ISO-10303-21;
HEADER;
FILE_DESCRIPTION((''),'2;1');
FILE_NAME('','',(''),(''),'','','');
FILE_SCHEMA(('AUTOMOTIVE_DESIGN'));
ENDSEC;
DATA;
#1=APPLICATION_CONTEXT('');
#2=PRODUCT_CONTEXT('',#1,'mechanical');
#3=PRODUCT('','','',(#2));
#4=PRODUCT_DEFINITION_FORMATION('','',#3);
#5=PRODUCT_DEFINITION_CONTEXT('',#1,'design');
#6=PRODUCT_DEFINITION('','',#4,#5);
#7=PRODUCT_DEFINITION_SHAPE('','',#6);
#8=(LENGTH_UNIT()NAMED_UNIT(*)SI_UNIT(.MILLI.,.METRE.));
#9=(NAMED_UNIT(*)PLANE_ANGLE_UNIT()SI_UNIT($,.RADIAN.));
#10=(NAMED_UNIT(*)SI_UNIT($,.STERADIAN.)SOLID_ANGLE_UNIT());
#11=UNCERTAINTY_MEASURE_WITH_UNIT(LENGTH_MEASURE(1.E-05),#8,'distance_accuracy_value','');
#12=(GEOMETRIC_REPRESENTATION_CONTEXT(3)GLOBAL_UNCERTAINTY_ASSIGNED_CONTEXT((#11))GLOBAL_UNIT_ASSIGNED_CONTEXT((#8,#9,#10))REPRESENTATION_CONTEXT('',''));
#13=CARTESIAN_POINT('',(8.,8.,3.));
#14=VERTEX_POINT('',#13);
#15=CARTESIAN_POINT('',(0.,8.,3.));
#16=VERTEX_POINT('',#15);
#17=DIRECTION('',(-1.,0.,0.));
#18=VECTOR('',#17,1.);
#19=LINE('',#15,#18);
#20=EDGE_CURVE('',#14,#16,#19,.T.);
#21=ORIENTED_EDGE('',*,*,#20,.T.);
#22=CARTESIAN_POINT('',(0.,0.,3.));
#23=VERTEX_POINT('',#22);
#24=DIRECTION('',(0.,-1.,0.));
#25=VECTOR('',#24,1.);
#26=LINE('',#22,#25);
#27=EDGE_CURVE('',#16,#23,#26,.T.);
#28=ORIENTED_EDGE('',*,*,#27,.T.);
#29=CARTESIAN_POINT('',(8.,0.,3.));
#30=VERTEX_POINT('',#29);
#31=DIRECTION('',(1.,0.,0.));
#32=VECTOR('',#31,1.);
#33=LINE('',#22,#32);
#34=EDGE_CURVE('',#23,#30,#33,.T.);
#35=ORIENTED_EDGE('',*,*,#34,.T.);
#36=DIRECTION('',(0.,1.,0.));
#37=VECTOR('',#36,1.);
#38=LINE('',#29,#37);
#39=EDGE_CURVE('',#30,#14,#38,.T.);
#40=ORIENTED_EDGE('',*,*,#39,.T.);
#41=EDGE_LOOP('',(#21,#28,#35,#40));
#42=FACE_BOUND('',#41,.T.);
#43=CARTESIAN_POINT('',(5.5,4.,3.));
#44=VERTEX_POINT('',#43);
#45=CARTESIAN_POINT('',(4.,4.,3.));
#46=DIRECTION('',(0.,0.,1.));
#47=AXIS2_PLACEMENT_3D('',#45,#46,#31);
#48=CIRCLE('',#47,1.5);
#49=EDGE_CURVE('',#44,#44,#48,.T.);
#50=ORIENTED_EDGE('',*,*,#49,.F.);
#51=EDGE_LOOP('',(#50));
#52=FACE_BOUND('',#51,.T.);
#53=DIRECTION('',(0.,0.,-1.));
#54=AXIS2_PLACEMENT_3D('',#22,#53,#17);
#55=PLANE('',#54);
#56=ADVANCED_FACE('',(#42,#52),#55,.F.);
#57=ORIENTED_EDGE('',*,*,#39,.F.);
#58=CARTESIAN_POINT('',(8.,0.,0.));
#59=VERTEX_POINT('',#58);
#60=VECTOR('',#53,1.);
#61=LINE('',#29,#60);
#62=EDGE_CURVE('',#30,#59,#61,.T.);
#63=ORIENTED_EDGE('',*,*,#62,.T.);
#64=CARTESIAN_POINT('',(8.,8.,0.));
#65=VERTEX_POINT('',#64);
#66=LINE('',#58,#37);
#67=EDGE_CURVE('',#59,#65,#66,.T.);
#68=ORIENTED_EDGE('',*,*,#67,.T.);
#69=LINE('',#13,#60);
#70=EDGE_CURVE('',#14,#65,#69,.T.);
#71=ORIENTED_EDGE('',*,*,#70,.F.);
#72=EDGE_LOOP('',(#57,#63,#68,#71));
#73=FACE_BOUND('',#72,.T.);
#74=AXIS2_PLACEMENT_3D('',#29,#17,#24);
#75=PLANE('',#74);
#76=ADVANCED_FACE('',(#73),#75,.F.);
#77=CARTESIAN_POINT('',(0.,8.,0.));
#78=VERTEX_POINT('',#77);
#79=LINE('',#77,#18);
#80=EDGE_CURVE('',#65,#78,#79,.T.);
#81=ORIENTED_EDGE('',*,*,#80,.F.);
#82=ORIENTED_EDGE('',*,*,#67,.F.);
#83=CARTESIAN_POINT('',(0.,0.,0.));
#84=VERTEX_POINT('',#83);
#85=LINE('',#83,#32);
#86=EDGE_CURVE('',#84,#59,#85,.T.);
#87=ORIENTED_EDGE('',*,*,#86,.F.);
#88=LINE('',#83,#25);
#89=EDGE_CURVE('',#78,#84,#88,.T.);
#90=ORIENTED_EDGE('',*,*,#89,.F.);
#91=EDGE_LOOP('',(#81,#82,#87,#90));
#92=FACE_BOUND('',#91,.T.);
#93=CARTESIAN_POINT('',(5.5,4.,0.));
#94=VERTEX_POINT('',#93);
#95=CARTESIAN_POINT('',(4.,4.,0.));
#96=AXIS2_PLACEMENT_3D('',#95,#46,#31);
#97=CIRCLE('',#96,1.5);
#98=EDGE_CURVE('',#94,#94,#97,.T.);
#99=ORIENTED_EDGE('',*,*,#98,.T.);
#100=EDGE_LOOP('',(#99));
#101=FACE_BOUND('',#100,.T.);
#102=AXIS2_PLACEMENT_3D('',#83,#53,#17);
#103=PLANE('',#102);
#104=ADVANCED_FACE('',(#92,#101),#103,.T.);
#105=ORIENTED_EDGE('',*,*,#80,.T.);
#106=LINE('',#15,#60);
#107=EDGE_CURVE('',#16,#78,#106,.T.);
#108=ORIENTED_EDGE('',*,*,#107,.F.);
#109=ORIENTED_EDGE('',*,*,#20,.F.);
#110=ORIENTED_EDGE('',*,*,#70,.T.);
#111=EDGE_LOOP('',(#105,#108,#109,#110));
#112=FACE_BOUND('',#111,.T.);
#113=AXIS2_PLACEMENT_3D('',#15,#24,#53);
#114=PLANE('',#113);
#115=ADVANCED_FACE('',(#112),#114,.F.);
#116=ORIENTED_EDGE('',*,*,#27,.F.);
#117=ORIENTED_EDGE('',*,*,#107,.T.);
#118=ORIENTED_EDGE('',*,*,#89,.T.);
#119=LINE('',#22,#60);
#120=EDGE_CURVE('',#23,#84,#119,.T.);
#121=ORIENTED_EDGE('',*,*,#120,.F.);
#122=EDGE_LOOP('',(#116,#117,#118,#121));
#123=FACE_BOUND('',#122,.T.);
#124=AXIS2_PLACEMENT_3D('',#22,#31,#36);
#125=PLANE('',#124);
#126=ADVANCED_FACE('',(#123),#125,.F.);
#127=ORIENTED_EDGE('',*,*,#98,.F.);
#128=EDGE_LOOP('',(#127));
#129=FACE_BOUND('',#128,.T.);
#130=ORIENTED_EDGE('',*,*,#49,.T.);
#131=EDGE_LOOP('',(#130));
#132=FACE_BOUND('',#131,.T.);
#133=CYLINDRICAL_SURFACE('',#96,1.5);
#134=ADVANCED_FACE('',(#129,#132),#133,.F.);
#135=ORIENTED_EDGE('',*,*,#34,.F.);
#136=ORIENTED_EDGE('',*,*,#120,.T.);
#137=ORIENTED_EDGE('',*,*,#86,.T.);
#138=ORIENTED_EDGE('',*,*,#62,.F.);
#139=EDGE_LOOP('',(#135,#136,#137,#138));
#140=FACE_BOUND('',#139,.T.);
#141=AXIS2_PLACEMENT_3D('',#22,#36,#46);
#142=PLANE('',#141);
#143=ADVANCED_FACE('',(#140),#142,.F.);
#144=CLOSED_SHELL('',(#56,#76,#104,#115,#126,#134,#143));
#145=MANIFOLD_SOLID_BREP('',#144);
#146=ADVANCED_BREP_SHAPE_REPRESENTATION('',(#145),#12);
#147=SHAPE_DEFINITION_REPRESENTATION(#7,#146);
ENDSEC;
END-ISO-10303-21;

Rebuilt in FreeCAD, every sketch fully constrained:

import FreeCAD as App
import Part
import Sketcher
from FreeCAD import Vector

doc = App.newDocument("Part")
params = doc.addObject("Spreadsheet::Sheet", "Params")
for row, (alias, value) in enumerate([
    ("sketch1_width", "8 mm"),
    ("pad1_length", "3 mm"),
    ("sketch2_diameter", "3 mm"),
], start=1):
    params.set(f"A{row}", alias)
    params.set(f"B{row}", "=" + value)
    params.setAlias(f"B{row}", alias)

body = doc.addObject("PartDesign::Body", "Body")

# Sketch on XY plane
sketch1 = body.newObject("Sketcher::SketchObject", "Sketch")
sketch1.AttachmentSupport = (doc.getObject("XY_Plane"), [""])
sketch1.MapMode = "FlatFace"
sketch1.addGeometry(Part.LineSegment(Vector(0, 8, 0), Vector(0, 0, 0)), False)
sketch1.addGeometry(Part.LineSegment(Vector(0, 0, 0), Vector(8, 0, 0)), False)
sketch1.addGeometry(Part.LineSegment(Vector(8, 0, 0), Vector(8, 8, 0)), False)
sketch1.addGeometry(Part.LineSegment(Vector(8, 8, 0), Vector(0, 8, 0)), False)
sketch1.addConstraint(Sketcher.Constraint("Coincident", 0, 2, 1, 1))
sketch1.addConstraint(Sketcher.Constraint("Coincident", 1, 2, 2, 1))
sketch1.addConstraint(Sketcher.Constraint("Coincident", 2, 2, 3, 1))
sketch1.addConstraint(Sketcher.Constraint("Coincident", 3, 2, 0, 1))
sketch1.addConstraint(Sketcher.Constraint("Vertical", 0))
sketch1.addConstraint(Sketcher.Constraint("Horizontal", 1))
sketch1.addConstraint(Sketcher.Constraint("Vertical", 2))
sketch1.addConstraint(Sketcher.Constraint("Horizontal", 3))
sketch1.addConstraint(Sketcher.Constraint("Coincident", 0, 2, -1, 1))
sketch1.addConstraint(Sketcher.Constraint("Equal", 3, 0))
sketch1.addConstraint(Sketcher.Constraint("DistanceX", 1, 1, 1, 2, 8.0))
sketch1.setExpression("Constraints[10]", "Params.sketch1_width")
pad1 = body.newObject("PartDesign::Pad", "Pad")
pad1.Profile = sketch1
pad1.setExpression("Length", "Params.pad1_length")

# Sketch on XY plane
sketch2 = body.newObject("Sketcher::SketchObject", "Sketch001")
sketch2.AttachmentSupport = (doc.getObject("XY_Plane"), [""])
sketch2.MapMode = "FlatFace"
sketch2.AttachmentOffset = App.Placement(Vector(0, 0, 3), App.Rotation())
sketch2.addGeometry(Part.Circle(Vector(4, 4, 0), Vector(0, 0, 1), 1.5), False)
sketch2.addConstraint(Sketcher.Constraint("Diameter", 0, 3.0))
sketch2.addConstraint(Sketcher.Constraint("DistanceX", -1, 1, 0, 3, 4.0))
sketch2.addConstraint(Sketcher.Constraint("DistanceY", -1, 1, 0, 3, 4.0))
sketch2.setExpression("Constraints[0]", "Params.sketch2_diameter")
pocket1 = body.newObject("PartDesign::Pocket", "Pocket")
pocket1.Profile = sketch2
pocket1.Type = "ThroughAll"

doc.recompute()
